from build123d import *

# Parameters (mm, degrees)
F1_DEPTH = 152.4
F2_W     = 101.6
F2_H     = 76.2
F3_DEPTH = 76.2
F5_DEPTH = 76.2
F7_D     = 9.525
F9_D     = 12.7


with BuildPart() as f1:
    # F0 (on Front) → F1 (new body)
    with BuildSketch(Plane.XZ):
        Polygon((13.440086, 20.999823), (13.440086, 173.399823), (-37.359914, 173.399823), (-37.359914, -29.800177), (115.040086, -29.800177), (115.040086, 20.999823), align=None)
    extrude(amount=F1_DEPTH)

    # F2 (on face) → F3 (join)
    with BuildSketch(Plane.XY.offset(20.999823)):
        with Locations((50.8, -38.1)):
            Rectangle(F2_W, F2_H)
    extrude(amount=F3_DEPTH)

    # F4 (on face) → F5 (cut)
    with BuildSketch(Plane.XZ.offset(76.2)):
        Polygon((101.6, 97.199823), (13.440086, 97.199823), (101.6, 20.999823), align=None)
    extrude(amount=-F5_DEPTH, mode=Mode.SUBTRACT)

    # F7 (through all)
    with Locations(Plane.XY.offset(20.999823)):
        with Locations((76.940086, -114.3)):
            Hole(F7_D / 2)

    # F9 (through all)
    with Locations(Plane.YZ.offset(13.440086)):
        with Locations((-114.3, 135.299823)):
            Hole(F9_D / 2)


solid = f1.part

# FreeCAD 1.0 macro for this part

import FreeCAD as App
import Part
import Sketcher
Q = App.Units.Quantity

doc = App.newDocument("Part")
body = doc.addObject("PartDesign::Body", "Body")

# Sketch on XZ plane
sketch1 = doc.addObject("Sketcher::SketchObject", "Sketch")
body.addObject(sketch1)
sketch1.AttachmentSupport = (doc.XZ_Plane, [""])
sketch1.MapMode = "FlatFace"
sketch1.addGeometry(Part.LineSegment(App.Vector(13.440086, 20.999823, 0), App.Vector(13.440086, 173.399823, 0)), False)
sketch1.addGeometry(Part.LineSegment(App.Vector(13.440086, 173.399823, 0), App.Vector(-37.359914, 173.399823, 0)), False)
sketch1.addGeometry(Part.LineSegment(App.Vector(-37.359914, 173.399823, 0), App.Vector(-37.359914, -29.800177, 0)), False)
sketch1.addGeometry(Part.LineSegment(App.Vector(-37.359914, -29.800177, 0), App.Vector(115.040086, -29.800177, 0)), False)
sketch1.addGeometry(Part.LineSegment(App.Vector(115.040086, -29.800177, 0), App.Vector(115.040086, 20.999823, 0)), False)
sketch1.addGeometry(Part.LineSegment(App.Vector(115.040086, 20.999823, 0), App.Vector(13.440086, 20.999823, 0)), False)
sketch1.addConstraint(Sketcher.Constraint("Coincident", 0, 2, 1, 1))
sketch1.addConstraint(Sketcher.Constraint("Coincident", 1, 2, 2, 1))
sketch1.addConstraint(Sketcher.Constraint("Coincident", 2, 2, 3, 1))
sketch1.addConstraint(Sketcher.Constraint("Coincident", 3, 2, 4, 1))
sketch1.addConstraint(Sketcher.Constraint("Coincident", 4, 2, 5, 1))
sketch1.addConstraint(Sketcher.Constraint("Coincident", 5, 2, 0, 1))
sketch1.addConstraint(Sketcher.Constraint("Vertical", 0))
sketch1.addConstraint(Sketcher.Constraint("Horizontal", 1))
sketch1.addConstraint(Sketcher.Constraint("Vertical", 2))
sketch1.addConstraint(Sketcher.Constraint("Horizontal", 3))
sketch1.addConstraint(Sketcher.Constraint("Vertical", 4))
sketch1.addConstraint(Sketcher.Constraint("Horizontal", 5))
sketch1.addConstraint(Sketcher.Constraint("Equal", 3, 0))
sketch1.addConstraint(Sketcher.Constraint("Equal", 1, 4))
sketch1.addConstraint(Sketcher.Constraint("DistanceX", 1, 2, 1, 1, Q("2 in")))
sketch1.addConstraint(Sketcher.Constraint("DistanceX", 3, 1, 3, 2, Q("6 in")))
sketch1.addConstraint(Sketcher.Constraint("DistanceX", -1, 1, 0, 2, 13.440086))
sketch1.addConstraint(Sketcher.Constraint("DistanceY", -1, 1, 0, 2, 173.399823))
pad1 = doc.addObject("PartDesign::Pad", "Pad")
body.addObject(pad1)
pad1.Profile = sketch1
pad1.Length = Q("6 in")

# Sketch on XY plane
sketch2 = doc.addObject("Sketcher::SketchObject", "Sketch001")
body.addObject(sketch2)
sketch2.AttachmentSupport = (doc.XY_Plane, [""])
sketch2.MapMode = "FlatFace"
sketch2.AttachmentOffset = App.Placement(App.Vector(0, 0, 20.999823), App.Rotation())
sketch2.addGeometry(Part.LineSegment(App.Vector(0, 0, 0), App.Vector(0, -76.2, 0)), False)
sketch2.addGeometry(Part.LineSegment(App.Vector(0, -76.2, 0), App.Vector(101.6, -76.2, 0)), False)
sketch2.addGeometry(Part.LineSegment(App.Vector(101.6, -76.2, 0), App.Vector(101.6, 0, 0)), False)
sketch2.addGeometry(Part.LineSegment(App.Vector(101.6, 0, 0), App.Vector(0, 0, 0)), False)
sketch2.addConstraint(Sketcher.Constraint("Coincident", 0, 2, 1, 1))
sketch2.addConstraint(Sketcher.Constraint("Coincident", 1, 2, 2, 1))
sketch2.addConstraint(Sketcher.Constraint("Coincident", 2, 2, 3, 1))
sketch2.addConstraint(Sketcher.Constraint("Coincident", 3, 2, 0, 1))
sketch2.addConstraint(Sketcher.Constraint("Vertical", 0))
sketch2.addConstraint(Sketcher.Constraint("Horizontal", 1))
sketch2.addConstraint(Sketcher.Constraint("Vertical", 2))
sketch2.addConstraint(Sketcher.Constraint("Horizontal", 3))
sketch2.addConstraint(Sketcher.Constraint("Coincident", 3, 2, -1, 1))
sketch2.addConstraint(Sketcher.Constraint("DistanceX", 1, 1, 1, 2, Q("4 in")))
sketch2.addConstraint(Sketcher.Constraint("DistanceY", 0, 2, 0, 1, Q("3 in")))
pad2 = doc.addObject("PartDesign::Pad", "Pad001")
body.addObject(pad2)
pad2.Profile = sketch2
pad2.Length = Q("3 in")

# Sketch on XZ plane
sketch3 = doc.addObject("Sketcher::SketchObject", "Sketch002")
body.addObject(sketch3)
sketch3.AttachmentSupport = (doc.XZ_Plane, [""])
sketch3.MapMode = "FlatFace"
sketch3.AttachmentOffset = App.Placement(App.Vector(0, 0, 3 * 25.4), App.Rotation())
sketch3.addGeometry(Part.LineSegment(App.Vector(101.6, 97.199823, 0), App.Vector(13.440086, 97.199823, 0)), False)
sketch3.addGeometry(Part.LineSegment(App.Vector(13.440086, 97.199823, 0), App.Vector(101.6, 20.999823, 0)), False)
sketch3.addGeometry(Part.LineSegment(App.Vector(101.6, 20.999823, 0), App.Vector(101.6, 97.199823, 0)), False)
sketch3.addConstraint(Sketcher.Constraint("Coincident", 0, 2, 1, 1))
sketch3.addConstraint(Sketcher.Constraint("Coincident", 1, 2, 2, 1))
sketch3.addConstraint(Sketcher.Constraint("Coincident", 2, 2, 0, 1))
sketch3.addConstraint(Sketcher.Constraint("Horizontal", 0))
sketch3.addConstraint(Sketcher.Constraint("Vertical", 2))
sketch3.addConstraint(Sketcher.Constraint("DistanceY", 2, 1, 2, 2, Q("3 in")))
sketch3.addConstraint(Sketcher.Constraint("DistanceX", -1, 1, 1, 2, Q("4 in")))
sketch3.addConstraint(Sketcher.Constraint("DistanceX", 0, 2, 0, 1, 88.159914))
sketch3.addConstraint(Sketcher.Constraint("DistanceY", -1, 1, 0, 2, 97.199823))
pocket1 = doc.addObject("PartDesign::Pocket", "Pocket")
body.addObject(pocket1)
pocket1.Profile = sketch3
pocket1.Length = Q("3 in")

# Sketch on XY plane
sketch4 = doc.addObject("Sketcher::SketchObject", "Sketch003")
body.addObject(sketch4)
sketch4.AttachmentSupport = (doc.XY_Plane, [""])
sketch4.MapMode = "FlatFace"
sketch4.AttachmentOffset = App.Placement(App.Vector(0, 0, 20.999823), App.Rotation())
sketch4.addGeometry(Part.Circle(App.Vector(76.940086, -114.3, 0), App.Vector(0, 0, 1), 4.7625), False)
sketch4.addConstraint(Sketcher.Constraint("Diameter", 0, Q("0.375 in")))
sketch4.addConstraint(Sketcher.Constraint("DistanceY", 0, 3, -1, 1, Q("4.5 in")))
sketch4.addConstraint(Sketcher.Constraint("DistanceX", -1, 1, 0, 3, 76.940086))
doc.recompute()
hole = doc.addObject("PartDesign::Hole", "Hole")
body.addObject(hole)
hole.Profile = sketch4
hole.ThreadType = "None"
hole.Diameter = Q("0.375 in")
hole.DepthType = "ThroughAll"

# Sketch on YZ plane
sketch5 = doc.addObject("Sketcher::SketchObject", "Sketch004")
body.addObject(sketch5)
sketch5.AttachmentSupport = (doc.YZ_Plane, [""])
sketch5.MapMode = "FlatFace"
sketch5.AttachmentOffset = App.Placement(App.Vector(0, 0, 13.440086), App.Rotation())
sketch5.addGeometry(Part.Circle(App.Vector(-114.3, 135.299823, 0), App.Vector(0, 0, 1), 6.35), False)
sketch5.addConstraint(Sketcher.Constraint("Diameter", 0, Q("0.5 in")))
sketch5.addConstraint(Sketcher.Constraint("DistanceX", 0, 3, -1, 1, Q("4.5 in")))
sketch5.addConstraint(Sketcher.Constraint("DistanceY", -1, 1, 0, 3, 135.299823))
doc.recompute()
hole2 = doc.addObject("PartDesign::Hole", "Hole001")
body.addObject(hole2)
hole2.Profile = sketch5
hole2.ThreadType = "None"
hole2.Diameter = Q("0.5 in")
hole2.DepthType = "ThroughAll"

doc.recompute()
